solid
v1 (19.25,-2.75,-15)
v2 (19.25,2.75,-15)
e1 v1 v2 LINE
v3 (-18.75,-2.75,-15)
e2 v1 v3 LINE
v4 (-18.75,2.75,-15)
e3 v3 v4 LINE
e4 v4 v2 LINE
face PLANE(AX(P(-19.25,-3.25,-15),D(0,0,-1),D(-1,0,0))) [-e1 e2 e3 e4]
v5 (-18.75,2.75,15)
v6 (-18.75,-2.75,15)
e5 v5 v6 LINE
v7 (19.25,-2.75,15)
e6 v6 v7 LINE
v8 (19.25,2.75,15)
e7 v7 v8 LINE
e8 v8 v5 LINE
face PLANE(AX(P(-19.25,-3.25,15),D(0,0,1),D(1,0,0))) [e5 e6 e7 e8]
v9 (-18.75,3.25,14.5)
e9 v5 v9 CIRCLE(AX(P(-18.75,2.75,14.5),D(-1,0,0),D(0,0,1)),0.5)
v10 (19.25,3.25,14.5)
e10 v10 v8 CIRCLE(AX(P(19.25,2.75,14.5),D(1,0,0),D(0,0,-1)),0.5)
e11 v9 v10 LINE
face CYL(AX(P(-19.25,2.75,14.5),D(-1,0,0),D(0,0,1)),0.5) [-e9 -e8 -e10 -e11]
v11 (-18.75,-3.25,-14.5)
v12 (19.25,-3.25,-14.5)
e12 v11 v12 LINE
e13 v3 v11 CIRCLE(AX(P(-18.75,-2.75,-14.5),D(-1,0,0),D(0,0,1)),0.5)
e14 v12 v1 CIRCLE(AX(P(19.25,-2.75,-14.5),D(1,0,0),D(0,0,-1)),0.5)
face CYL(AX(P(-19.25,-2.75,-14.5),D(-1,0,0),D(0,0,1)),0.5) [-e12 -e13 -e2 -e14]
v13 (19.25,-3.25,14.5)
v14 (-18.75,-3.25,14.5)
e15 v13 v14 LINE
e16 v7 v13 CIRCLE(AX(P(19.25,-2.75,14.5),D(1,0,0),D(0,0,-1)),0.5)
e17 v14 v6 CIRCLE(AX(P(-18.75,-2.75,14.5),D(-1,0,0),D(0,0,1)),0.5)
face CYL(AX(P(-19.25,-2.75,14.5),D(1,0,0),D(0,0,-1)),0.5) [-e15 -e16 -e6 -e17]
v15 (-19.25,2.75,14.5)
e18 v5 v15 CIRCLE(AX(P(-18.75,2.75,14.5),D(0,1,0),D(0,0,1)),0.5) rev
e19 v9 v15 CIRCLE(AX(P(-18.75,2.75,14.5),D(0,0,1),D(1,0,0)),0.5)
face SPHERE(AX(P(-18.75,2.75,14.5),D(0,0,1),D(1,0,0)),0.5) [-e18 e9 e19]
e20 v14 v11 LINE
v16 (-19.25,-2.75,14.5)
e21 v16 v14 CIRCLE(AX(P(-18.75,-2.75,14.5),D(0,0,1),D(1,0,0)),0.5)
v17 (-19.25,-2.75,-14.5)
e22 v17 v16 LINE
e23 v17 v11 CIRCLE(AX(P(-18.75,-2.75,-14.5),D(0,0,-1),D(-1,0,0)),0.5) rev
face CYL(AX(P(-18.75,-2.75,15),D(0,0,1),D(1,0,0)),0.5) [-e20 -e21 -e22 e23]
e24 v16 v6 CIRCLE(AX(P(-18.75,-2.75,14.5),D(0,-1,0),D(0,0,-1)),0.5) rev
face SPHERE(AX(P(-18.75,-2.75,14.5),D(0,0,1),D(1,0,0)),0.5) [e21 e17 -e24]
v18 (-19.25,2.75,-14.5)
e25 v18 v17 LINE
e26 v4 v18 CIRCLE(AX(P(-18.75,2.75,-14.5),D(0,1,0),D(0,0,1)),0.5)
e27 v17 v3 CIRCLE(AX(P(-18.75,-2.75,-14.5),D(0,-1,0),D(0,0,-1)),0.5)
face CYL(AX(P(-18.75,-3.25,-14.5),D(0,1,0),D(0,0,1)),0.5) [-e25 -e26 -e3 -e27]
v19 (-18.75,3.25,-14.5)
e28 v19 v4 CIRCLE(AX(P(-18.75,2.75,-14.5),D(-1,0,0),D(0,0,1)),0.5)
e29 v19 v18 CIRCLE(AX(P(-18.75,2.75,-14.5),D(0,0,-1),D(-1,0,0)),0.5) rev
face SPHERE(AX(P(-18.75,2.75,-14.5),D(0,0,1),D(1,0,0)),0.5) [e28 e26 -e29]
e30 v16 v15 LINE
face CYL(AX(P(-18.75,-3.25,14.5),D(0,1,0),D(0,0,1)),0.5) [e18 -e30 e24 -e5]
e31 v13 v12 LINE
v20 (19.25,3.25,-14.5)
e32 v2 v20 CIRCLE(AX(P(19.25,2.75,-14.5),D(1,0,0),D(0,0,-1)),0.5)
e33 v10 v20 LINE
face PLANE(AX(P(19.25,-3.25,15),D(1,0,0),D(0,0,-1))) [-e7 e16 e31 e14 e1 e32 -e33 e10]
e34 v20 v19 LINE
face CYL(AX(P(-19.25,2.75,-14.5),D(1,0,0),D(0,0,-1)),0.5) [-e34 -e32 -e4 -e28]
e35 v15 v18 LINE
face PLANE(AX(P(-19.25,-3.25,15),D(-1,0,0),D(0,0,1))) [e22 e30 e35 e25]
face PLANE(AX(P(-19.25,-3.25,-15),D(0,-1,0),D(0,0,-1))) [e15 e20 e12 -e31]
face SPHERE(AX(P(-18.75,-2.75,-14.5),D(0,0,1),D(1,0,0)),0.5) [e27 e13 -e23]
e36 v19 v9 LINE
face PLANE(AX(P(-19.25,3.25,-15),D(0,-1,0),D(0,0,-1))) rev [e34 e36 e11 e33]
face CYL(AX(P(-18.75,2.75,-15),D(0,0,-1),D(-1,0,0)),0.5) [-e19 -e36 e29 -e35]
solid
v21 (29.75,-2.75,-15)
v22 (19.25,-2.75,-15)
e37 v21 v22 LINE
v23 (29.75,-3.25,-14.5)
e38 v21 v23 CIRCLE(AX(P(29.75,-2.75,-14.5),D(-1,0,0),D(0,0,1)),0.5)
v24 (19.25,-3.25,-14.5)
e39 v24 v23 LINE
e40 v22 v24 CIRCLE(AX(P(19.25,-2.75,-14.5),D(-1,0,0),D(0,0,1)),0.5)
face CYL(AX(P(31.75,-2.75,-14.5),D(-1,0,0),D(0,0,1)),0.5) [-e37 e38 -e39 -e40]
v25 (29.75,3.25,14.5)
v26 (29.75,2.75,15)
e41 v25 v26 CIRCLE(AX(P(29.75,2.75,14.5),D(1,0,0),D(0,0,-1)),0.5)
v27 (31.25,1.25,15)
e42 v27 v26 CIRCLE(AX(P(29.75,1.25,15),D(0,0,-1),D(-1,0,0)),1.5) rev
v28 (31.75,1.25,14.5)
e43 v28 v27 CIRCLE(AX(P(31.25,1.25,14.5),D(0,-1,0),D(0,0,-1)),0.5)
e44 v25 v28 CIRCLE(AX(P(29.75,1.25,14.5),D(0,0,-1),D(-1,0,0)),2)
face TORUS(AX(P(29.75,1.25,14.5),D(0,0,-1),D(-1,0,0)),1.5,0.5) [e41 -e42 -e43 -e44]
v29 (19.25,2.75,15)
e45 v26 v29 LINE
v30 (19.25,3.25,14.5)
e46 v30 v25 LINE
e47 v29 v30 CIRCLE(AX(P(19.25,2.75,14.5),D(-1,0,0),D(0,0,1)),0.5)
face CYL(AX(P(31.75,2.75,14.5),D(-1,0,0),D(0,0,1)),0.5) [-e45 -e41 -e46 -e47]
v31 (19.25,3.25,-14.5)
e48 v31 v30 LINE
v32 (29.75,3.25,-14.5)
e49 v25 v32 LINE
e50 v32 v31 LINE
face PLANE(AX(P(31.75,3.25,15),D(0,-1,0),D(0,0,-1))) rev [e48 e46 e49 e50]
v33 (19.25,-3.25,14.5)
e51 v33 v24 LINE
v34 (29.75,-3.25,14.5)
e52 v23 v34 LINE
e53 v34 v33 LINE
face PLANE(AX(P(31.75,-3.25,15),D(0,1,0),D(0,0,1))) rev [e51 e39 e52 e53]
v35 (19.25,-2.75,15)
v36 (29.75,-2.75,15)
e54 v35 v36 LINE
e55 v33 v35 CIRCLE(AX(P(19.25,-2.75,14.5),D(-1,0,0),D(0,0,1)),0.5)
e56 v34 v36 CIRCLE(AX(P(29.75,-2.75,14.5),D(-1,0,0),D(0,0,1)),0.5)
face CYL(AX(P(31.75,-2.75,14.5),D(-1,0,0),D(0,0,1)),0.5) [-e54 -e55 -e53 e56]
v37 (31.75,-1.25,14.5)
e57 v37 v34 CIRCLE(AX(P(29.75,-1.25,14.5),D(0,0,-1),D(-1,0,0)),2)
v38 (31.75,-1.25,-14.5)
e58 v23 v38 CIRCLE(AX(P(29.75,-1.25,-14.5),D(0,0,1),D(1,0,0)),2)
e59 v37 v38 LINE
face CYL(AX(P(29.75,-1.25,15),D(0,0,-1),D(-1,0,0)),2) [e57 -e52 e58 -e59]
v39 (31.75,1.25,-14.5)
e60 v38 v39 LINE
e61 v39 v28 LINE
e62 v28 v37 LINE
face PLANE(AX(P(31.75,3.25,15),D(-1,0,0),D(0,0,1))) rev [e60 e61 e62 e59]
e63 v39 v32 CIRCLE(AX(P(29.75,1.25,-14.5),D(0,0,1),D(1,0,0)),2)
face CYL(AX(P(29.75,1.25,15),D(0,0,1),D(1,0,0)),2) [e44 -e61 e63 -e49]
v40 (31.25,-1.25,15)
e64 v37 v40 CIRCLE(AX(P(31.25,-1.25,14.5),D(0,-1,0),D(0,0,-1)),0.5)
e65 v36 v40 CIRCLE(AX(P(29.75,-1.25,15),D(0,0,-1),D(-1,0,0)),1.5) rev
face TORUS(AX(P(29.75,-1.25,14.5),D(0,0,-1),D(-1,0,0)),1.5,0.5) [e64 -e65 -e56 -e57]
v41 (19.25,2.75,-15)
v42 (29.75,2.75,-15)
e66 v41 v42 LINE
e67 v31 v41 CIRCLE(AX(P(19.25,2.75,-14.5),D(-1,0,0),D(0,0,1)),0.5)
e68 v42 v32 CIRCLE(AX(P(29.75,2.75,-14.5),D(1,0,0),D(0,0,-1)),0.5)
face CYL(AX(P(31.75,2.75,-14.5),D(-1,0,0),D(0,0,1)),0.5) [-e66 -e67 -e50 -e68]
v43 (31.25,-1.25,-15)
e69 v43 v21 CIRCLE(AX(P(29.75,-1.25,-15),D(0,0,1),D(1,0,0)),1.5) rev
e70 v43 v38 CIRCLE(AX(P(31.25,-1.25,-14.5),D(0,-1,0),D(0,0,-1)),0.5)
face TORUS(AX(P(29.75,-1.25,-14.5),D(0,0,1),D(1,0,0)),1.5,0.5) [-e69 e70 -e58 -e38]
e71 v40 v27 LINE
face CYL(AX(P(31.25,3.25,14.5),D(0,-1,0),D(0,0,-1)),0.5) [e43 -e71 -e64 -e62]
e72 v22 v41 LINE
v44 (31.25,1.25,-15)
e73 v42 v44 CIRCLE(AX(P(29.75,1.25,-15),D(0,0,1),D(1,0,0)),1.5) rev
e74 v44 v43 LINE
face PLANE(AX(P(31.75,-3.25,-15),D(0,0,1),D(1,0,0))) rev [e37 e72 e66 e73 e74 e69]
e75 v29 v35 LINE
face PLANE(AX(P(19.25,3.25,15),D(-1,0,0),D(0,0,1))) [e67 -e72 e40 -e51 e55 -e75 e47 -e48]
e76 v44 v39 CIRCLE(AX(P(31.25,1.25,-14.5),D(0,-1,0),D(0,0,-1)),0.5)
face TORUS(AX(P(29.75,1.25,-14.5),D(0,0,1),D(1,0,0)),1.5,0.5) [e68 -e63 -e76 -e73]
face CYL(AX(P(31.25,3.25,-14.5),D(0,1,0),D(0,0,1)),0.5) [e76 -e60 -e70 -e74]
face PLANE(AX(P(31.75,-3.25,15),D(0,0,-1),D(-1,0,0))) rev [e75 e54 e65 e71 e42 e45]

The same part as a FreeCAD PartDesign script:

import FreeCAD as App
import Part
import Sketcher
from FreeCAD import Vector


def edges_at(feature, points):
    """Names of the edges that pass closest to the given points."""
    edges = feature.Shape.Edges
    near = lambda p: min(range(len(edges)), key=lambda i: edges[i].distToShape(Part.Vertex(*p))[0])
    return sorted({f"Edge{near(p) + 1}" for p in points})


def add_polygon(sketch, points):
    """Adds a closed chain of lines whose ends are joined by coincident constraints."""
    first, n = sketch.GeometryCount, len(points)
    for a, b in zip(points, points[1:] + points[:1]):
        sketch.addGeometry(Part.LineSegment(App.Vector(*a, 0), App.Vector(*b, 0)), False)
    for i in range(n):
        sketch.addConstraint(Sketcher.Constraint("Coincident", first + i, 2, first + (i + 1) % n, 1))

doc = App.newDocument("Part")
body = doc.addObject("PartDesign::Body", "Body")

sketch1 = doc.addObject("Sketcher::SketchObject", "Sketch")
body.addObject(sketch1)
sketch1.AttachmentSupport = (doc.XZ_Plane, [""])
sketch1.MapMode = "FlatFace"
add_polygon(sketch1, [(-19, -15), (-19, 15), (19, 15), (19, -15)])
sketch1.addConstraint(Sketcher.Constraint("Vertical", 0))
sketch1.addConstraint(Sketcher.Constraint("Horizontal", 1))
sketch1.addConstraint(Sketcher.Constraint("Vertical", 2))
sketch1.addConstraint(Sketcher.Constraint("Horizontal", 3))
sketch1.addConstraint(Sketcher.Constraint("Symmetric", 0, 2, 2, 2, -1, 1))
sketch1.addConstraint(Sketcher.Constraint("DistanceY", 0, 1, 0, 2, 30.0))
sketch1.addConstraint(Sketcher.Constraint("DistanceX", 1, 1, 1, 2, 38.5))
pad1 = doc.addObject("PartDesign::Pad", "Pad")
body.addObject(pad1)
pad1.Profile = sketch1
pad1.Type = "TwoLengths"
pad1.Length = 3.25
pad1.Length2 = 3.25
pad1.Reversed = True
doc.recompute()

fillet = doc.addObject("PartDesign::Fillet", "Fillet")
body.addObject(fillet)
fillet.Base = (pad1, edges_at(pad1, [
    (-19.25, 3.25, 0),
    (0, 3.25, 15),
    (0, -3.25, -15),
    (0, 3.25, -15),
    (-19.25, -3.25, 0),
    (0, -3.25, 15),
    (-19.25, 0, -15),
    (-19.25, 0, 15),
]))
fillet.Radius = 0.5
body2 = doc.addObject("PartDesign::Body", "Body001")

sketch2 = doc.addObject("Sketcher::SketchObject", "Sketch001")
body2.addObject(sketch2)
sketch2.AttachmentSupport = (doc.getObject("YZ_Plane001"), [""])
sketch2.MapMode = "FlatFace"
sketch2.AttachmentOffset = App.Placement(Vector(0, 0, 19.25), App.Rotation())
add_polygon(sketch2, [(3, 15), (-3, 15), (-3, -15), (3, -15)])
sketch2.addConstraint(Sketcher.Constraint("Horizontal", 0))
sketch2.addConstraint(Sketcher.Constraint("Vertical", 1))
sketch2.addConstraint(Sketcher.Constraint("Horizontal", 2))
sketch2.addConstraint(Sketcher.Constraint("Vertical", 3))
sketch2.addConstraint(Sketcher.Constraint("Symmetric", 0, 2, 2, 2, -1, 1))
sketch2.addConstraint(Sketcher.Constraint("DistanceY", 1, 2, 1, 1, 30.0))
sketch2.addConstraint(Sketcher.Constraint("DistanceX", 0, 2, 0, 1, 6.5))
pad2 = doc.addObject("PartDesign::Pad", "Pad001")
body2.addObject(pad2)
pad2.Profile = sketch2
pad2.Length = 12.5
doc.recompute()

fillet2 = doc.addObject("PartDesign::Fillet", "Fillet001")
body2.addObject(fillet2)
fillet2.Base = (pad2, edges_at(pad2, [(31.75, 3.25, 0), (31.75, -3.25, 0)]))
fillet2.Radius = 2
doc.recompute()

fillet3 = doc.addObject("PartDesign::Fillet", "Fillet002")
body2.addObject(fillet3)
fillet3.Base = (fillet2, edges_at(fillet2, [
    (31.75, 0, 15),
    (31.75, 0, -15),
    (24.5, 3.25, -15),
    (24.5, -3.25, -15),
    (31.164, 2.664, -15),
    (31.164, -2.664, -15),
    (24.5, -3.25, 15),
    (24.5, 3.25, 15),
    (31.164, 2.664, 15),
    (31.164, -2.664, 15),
]))
fillet3.Radius = 0.5

doc.recompute()
